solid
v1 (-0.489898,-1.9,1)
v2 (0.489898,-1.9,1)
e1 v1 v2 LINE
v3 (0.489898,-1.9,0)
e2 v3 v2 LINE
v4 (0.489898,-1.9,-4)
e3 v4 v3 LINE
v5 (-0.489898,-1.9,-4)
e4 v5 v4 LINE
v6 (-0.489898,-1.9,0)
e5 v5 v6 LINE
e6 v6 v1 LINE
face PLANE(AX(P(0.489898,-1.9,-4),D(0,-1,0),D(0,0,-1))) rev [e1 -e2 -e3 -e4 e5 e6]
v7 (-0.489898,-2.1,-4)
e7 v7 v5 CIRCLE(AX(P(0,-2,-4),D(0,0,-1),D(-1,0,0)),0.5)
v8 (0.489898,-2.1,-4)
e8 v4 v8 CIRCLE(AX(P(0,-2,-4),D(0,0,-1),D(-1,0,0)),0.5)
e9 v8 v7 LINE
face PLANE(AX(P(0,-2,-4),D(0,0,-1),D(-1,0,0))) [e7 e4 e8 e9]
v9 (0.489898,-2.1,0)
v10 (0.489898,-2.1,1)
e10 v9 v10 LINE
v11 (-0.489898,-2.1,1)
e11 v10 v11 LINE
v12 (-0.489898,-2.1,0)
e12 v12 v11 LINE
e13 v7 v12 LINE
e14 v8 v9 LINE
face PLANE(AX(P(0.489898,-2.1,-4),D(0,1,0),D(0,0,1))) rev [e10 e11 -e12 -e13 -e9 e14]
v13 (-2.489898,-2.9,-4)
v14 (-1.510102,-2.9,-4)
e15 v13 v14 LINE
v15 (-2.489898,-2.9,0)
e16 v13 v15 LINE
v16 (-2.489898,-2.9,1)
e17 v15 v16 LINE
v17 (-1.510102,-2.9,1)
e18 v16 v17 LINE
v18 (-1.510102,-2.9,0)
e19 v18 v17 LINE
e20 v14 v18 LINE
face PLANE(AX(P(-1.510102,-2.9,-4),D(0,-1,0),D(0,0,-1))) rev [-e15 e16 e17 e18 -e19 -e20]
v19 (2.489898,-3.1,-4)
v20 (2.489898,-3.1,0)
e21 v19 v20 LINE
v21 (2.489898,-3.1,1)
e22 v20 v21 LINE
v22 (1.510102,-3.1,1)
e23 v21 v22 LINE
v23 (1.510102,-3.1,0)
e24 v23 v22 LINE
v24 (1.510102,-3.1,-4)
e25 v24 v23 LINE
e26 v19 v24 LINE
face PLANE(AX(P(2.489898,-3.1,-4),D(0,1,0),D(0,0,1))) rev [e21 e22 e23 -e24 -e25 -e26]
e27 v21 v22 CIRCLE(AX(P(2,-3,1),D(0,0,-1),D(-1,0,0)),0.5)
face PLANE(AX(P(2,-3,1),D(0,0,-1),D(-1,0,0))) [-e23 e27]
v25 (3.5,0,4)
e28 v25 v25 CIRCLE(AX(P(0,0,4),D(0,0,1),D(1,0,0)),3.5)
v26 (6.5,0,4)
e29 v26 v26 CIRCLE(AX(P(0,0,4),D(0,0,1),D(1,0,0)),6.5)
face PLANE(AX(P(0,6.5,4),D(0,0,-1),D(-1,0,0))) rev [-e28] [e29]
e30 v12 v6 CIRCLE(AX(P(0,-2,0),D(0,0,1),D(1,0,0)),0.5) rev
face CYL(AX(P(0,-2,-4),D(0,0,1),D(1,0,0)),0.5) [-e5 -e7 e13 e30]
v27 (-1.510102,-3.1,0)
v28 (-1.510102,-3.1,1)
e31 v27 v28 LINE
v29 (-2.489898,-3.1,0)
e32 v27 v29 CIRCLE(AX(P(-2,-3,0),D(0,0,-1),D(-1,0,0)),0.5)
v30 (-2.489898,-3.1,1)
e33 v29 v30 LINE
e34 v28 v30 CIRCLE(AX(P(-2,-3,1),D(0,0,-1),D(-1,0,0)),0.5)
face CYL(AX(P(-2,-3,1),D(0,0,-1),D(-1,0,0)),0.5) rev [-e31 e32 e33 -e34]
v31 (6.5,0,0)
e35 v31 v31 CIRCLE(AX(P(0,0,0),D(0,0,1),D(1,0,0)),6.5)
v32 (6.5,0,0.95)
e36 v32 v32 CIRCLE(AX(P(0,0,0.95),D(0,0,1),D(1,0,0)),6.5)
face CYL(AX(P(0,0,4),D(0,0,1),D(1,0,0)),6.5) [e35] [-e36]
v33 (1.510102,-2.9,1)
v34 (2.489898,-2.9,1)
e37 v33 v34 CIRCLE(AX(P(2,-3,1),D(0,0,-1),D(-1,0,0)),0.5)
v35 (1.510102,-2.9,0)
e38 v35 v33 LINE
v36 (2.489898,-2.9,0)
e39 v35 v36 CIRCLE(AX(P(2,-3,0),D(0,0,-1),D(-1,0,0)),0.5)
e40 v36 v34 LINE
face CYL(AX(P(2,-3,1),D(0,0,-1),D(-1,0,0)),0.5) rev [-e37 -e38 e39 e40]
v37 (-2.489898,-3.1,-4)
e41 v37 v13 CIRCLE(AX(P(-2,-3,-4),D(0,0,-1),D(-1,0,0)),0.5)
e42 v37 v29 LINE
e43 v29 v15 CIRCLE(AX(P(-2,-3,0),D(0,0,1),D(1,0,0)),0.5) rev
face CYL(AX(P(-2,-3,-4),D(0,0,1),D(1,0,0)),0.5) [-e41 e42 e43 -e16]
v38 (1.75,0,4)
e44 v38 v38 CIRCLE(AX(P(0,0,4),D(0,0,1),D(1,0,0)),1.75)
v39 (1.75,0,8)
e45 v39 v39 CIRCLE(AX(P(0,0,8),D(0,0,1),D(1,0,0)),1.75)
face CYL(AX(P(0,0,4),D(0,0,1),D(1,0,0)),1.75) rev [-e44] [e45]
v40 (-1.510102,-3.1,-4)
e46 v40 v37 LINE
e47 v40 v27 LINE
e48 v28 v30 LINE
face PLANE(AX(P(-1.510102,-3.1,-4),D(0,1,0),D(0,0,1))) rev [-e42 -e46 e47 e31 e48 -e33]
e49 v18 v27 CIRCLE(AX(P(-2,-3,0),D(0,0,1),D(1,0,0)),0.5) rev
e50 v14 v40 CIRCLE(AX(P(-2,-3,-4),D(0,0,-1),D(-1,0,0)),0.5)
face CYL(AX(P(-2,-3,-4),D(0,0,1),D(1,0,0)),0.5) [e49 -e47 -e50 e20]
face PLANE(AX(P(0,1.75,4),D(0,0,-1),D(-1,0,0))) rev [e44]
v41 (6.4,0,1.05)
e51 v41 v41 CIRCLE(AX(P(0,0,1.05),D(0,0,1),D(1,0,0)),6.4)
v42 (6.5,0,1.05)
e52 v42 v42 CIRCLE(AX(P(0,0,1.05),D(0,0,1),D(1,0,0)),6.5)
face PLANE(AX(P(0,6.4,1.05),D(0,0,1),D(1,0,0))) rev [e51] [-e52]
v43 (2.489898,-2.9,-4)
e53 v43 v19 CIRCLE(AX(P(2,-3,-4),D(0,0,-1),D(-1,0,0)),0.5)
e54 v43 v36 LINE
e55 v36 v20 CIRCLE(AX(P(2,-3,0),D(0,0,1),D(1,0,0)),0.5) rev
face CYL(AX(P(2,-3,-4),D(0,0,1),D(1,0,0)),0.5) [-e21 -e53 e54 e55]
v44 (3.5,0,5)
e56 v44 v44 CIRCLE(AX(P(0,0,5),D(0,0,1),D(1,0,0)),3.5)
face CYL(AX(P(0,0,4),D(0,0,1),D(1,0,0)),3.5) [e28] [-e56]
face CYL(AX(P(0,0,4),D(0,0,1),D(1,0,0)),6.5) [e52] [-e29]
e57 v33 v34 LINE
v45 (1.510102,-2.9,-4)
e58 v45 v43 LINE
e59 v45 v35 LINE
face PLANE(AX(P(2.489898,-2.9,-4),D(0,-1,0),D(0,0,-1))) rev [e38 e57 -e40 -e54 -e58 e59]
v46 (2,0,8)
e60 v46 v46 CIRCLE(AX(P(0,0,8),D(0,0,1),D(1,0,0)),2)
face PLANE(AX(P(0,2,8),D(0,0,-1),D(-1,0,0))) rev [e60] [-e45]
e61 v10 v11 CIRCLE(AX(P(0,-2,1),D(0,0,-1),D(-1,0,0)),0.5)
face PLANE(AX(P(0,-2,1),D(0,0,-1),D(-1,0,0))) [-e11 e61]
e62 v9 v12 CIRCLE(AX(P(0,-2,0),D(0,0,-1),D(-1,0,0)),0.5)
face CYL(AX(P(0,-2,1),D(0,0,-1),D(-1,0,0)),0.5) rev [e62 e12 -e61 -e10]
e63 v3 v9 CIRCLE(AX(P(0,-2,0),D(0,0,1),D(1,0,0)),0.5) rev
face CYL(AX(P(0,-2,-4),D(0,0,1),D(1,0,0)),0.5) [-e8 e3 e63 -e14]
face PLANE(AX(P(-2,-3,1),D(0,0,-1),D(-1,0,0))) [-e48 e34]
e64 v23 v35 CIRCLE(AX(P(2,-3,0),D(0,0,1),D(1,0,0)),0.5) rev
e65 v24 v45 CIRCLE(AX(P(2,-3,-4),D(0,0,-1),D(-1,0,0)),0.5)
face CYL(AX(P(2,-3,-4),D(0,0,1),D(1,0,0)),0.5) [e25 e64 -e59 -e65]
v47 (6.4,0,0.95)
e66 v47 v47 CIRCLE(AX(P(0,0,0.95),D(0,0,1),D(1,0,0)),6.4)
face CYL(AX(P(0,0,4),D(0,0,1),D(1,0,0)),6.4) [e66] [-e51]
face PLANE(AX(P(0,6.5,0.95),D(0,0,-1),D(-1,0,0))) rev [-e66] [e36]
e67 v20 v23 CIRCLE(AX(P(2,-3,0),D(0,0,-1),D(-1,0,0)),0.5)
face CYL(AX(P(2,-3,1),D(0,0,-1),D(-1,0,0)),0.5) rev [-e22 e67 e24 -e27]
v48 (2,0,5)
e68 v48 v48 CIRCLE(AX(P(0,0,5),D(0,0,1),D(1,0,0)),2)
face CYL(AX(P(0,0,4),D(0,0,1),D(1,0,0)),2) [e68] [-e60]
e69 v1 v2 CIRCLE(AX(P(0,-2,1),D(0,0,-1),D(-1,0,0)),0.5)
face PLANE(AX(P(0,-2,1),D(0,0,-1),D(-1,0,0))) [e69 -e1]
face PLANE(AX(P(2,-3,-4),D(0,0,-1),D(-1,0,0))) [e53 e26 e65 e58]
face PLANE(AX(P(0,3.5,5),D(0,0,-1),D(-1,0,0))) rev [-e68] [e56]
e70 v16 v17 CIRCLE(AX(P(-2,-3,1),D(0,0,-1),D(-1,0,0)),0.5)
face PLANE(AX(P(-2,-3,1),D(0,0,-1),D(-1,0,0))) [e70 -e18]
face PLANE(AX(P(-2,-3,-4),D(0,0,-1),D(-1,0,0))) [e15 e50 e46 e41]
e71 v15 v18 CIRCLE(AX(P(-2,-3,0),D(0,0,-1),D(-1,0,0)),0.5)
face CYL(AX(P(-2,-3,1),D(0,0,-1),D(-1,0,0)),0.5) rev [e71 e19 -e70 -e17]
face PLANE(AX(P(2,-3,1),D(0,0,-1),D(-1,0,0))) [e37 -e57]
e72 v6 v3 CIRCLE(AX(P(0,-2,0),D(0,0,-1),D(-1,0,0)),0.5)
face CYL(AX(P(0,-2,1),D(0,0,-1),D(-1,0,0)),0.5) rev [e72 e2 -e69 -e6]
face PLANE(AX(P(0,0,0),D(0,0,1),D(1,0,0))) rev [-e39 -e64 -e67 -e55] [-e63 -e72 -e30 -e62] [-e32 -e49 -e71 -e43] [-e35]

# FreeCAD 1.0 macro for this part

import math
import FreeCAD as App
import Part
import Sketcher

V = App.Vector

doc = App.newDocument("Part")
params = doc.addObject("Spreadsheet::Sheet", "Params")
for row, (alias, value) in enumerate([
    ("sketch1_width", "3 mm"),
    ("sketch1_height", "1 mm"),
    ("sketch1_width2", "6.5 mm"),
    ("sketch1_width3", "0.1 mm"),
    ("sketch1_width4", "1.5 mm"),
    ("revolution_angle", "360 deg"),
    ("sketch2_diameter", "1 mm"),
    ("pocket1_length", "1 mm"),
    ("sketch3_radius", "0.5 mm"),
    ("pad1_length", "5 mm"),
], start=1):
    params.set(f"A{row}", alias)
    params.set(f"B{row}", "=" + value)
    params.setAlias(f"B{row}", alias)

body = doc.addObject("PartDesign::Body", "Body")

# Sketch on YZ plane
sketch1 = body.newObject("Sketcher::SketchObject", "Sketch")
sketch1.AttachmentSupport = (doc.getObject("YZ_Plane"), [""])
sketch1.MapMode = "FlatFace"
sketch1.addGeometry([
    Part.LineSegment(V(0, 0, 0), V(6.5, 0, 0)),  # 0
    Part.LineSegment(V(6.5, 0, 0), V(6.5, 0.95, 0)),  # 1
    Part.LineSegment(V(6.5, 0.95, 0), V(6.4, 0.95, 0)),  # 2
    Part.LineSegment(V(6.4, 0.95, 0), V(6.4, 1.05, 0)),  # 3
    Part.LineSegment(V(6.4, 1.05, 0), V(6.5, 1.05, 0)),  # 4
    Part.LineSegment(V(6.5, 1.05, 0), V(6.5, 4, 0)),  # 5
    Part.LineSegment(V(6.5, 4, 0), V(3.5, 4, 0)),  # 6
    Part.LineSegment(V(3.5, 4, 0), V(3.5, 5, 0)),  # 7
    Part.LineSegment(V(3.5, 5, 0), V(2, 5, 0)),  # 8
    Part.LineSegment(V(2, 5, 0), V(2, 8, 0)),  # 9
    Part.LineSegment(V(2, 8, 0), V(1.75, 8, 0)),  # 10
    Part.LineSegment(V(1.75, 8, 0), V(1.75, 4, 0)),  # 11
    Part.LineSegment(V(1.75, 4, 0), V(0, 4, 0)),  # 12
    Part.LineSegment(V(0, 4, 0), V(0, 0, 0)),  # 13
], False)
sketch1.addConstraint([
    Sketcher.Constraint("Coincident", 0, 2, 1, 1),
    Sketcher.Constraint("Coincident", 1, 2, 2, 1),
    Sketcher.Constraint("Coincident", 2, 2, 3, 1),
    Sketcher.Constraint("Coincident", 3, 2, 4, 1),
    Sketcher.Constraint("Coincident", 4, 2, 5, 1),
    Sketcher.Constraint("Coincident", 5, 2, 6, 1),
    Sketcher.Constraint("Coincident", 6, 2, 7, 1),
    Sketcher.Constraint("Coincident", 7, 2, 8, 1),
    Sketcher.Constraint("Coincident", 8, 2, 9, 1),
    Sketcher.Constraint("Coincident", 9, 2, 10, 1),
    Sketcher.Constraint("Coincident", 10, 2, 11, 1),
    Sketcher.Constraint("Coincident", 11, 2, 12, 1),
    Sketcher.Constraint("Coincident", 12, 2, 13, 1),
    Sketcher.Constraint("Coincident", 13, 2, 0, 1),
    Sketcher.Constraint("Horizontal", 0),
    Sketcher.Constraint("Vertical", 1),
    Sketcher.Constraint("Horizontal", 2),
    Sketcher.Constraint("Vertical", 3),
    Sketcher.Constraint("Horizontal", 4),
    Sketcher.Constraint("Vertical", 5),
    Sketcher.Constraint("Horizontal", 6),
    Sketcher.Constraint("Vertical", 7),
    Sketcher.Constraint("Horizontal", 8),
    Sketcher.Constraint("Vertical", 9),
    Sketcher.Constraint("Horizontal", 10),
    Sketcher.Constraint("Vertical", 11),
    Sketcher.Constraint("Horizontal", 12),
    Sketcher.Constraint("Vertical", 13),
    Sketcher.Constraint("Coincident", 13, 2, -1, 1),
    Sketcher.Constraint("Horizontal", 6, 2, 11, 2),
    Sketcher.Constraint("Vertical", 1, 2, 4, 2),
    Sketcher.Constraint("Equal", 4, 3),
    Sketcher.Constraint("Equal", 6, 9),
    Sketcher.Constraint("Equal", 11, 13),
    Sketcher.Constraint("DistanceX", 6, 2, 6, 1, 3.0),
    Sketcher.Constraint("DistanceY", 7, 1, 7, 2, 1.0),
    Sketcher.Constraint("DistanceX", 0, 1, 0, 2, 6.5),
    Sketcher.Constraint("DistanceX", 2, 2, 2, 1, 0.1),
    Sketcher.Constraint("DistanceX", 8, 2, 8, 1, 1.5),
    Sketcher.Constraint("DistanceX", 10, 2, 10, 1, 0.25),
    Sketcher.Constraint("DistanceY", 1, 1, 1, 2, 0.95),
])
sketch1.setExpression("Constraints[34]", "Params.sketch1_width")
sketch1.setExpression("Constraints[35]", "Params.sketch1_height")
sketch1.setExpression("Constraints[36]", "Params.sketch1_width2")
sketch1.setExpression("Constraints[37]", "Params.sketch1_width3")
sketch1.setExpression("Constraints[38]", "Params.sketch1_width4")
revolution = body.newObject("PartDesign::Revolution", "Revolution")
revolution.Profile = sketch1
revolution.ReferenceAxis = (sketch1, ["V_Axis"])
revolution.setExpression("Angle", "Params.revolution_angle")

# Sketch on XY plane
sketch2 = body.newObject("Sketcher::SketchObject", "Sketch001")
sketch2.AttachmentSupport = (doc.getObject("XY_Plane"), [""])
sketch2.MapMode = "FlatFace"
sketch2.addGeometry([
    Part.Circle(V(2, -3, 0), V(0, 0, 1), 0.5),
    Part.Circle(V(-2, -3, 0), V(0, 0, 1), 0.5),
    Part.Circle(V(0, -2, 0), V(0, 0, 1), 0.5),
], False)
sketch2.addConstraint([
    Sketcher.Constraint("Equal", 0, 1),
    Sketcher.Constraint("Equal", 1, 2),
    Sketcher.Constraint("Symmetric", 0, 3, 1, 3, -2),
    Sketcher.Constraint("PointOnObject", 2, 3, -2),
    Sketcher.Constraint("Diameter", 0, 1.0),
    Sketcher.Constraint("DistanceX", -1, 1, 0, 3, 2.0),
    Sketcher.Constraint("DistanceY", 0, 3, -1, 1, 3.0),
    Sketcher.Constraint("DistanceY", 2, 3, -1, 1, 2.0),
])
sketch2.setExpression("Constraints[4]", "Params.sketch2_diameter")
pocket1 = body.newObject("PartDesign::Pocket", "Pocket")
pocket1.Profile = sketch2
pocket1.setExpression("Length", "Params.pocket1_length")
pocket1.Reversed = True

# Sketch on XY plane
sketch3 = body.newObject("Sketcher::SketchObject", "Sketch002")
sketch3.AttachmentSupport = (doc.getObject("XY_Plane"), [""])
sketch3.MapMode = "FlatFace"
sketch3.AttachmentOffset = App.Placement(V(0, 0, -4), App.Rotation())
sketch3.addGeometry([
    Part.LineSegment(V(-0.489898, -1.9, 0), V(0.489898, -1.9, 0)),  # 0
    Part.ArcOfCircle(Part.Circle(V(0, -2, 0), V(0, 0, 1), 0.5), math.radians(-11.536959), math.radians(11.536959)),  # 1
    Part.LineSegment(V(0.489898, -2.1, 0), V(-0.489898, -2.1, 0)),  # 2
    Part.ArcOfCircle(Part.Circle(V(0, -2, 0), V(0, 0, 1), 0.5), math.radians(168.463041), math.radians(191.536959)),  # 3
    Part.LineSegment(V(-2.489898, -2.9, 0), V(-1.510102, -2.9, 0)),  # 4
    Part.ArcOfCircle(Part.Circle(V(-2, -3, 0), V(0, 0, 1), 0.5), math.radians(-11.536959), math.radians(11.536959)),  # 5
    Part.LineSegment(V(-1.510102, -3.1, 0), V(-2.489898, -3.1, 0)),  # 6
    Part.ArcOfCircle(Part.Circle(V(-2, -3, 0), V(0, 0, 1), 0.5), math.radians(168.463041), math.radians(191.536959)),  # 7
    Part.LineSegment(V(1.510102, -2.9, 0), V(2.489898, -2.9, 0)),  # 8
    Part.ArcOfCircle(Part.Circle(V(2, -3, 0), V(0, 0, 1), 0.5), math.radians(-11.536959), math.radians(11.536959)),  # 9
    Part.LineSegment(V(2.489898, -3.1, 0), V(1.510102, -3.1, 0)),  # 10
    Part.ArcOfCircle(Part.Circle(V(2, -3, 0), V(0, 0, 1), 0.5), math.radians(168.463041), math.radians(191.536959)),  # 11
], False)
sketch3.addConstraint([
    Sketcher.Constraint("Coincident", 0, 2, 1, 2),
    Sketcher.Constraint("Coincident", 1, 1, 2, 1),
    Sketcher.Constraint("Coincident", 2, 2, 3, 2),
    Sketcher.Constraint("Coincident", 3, 1, 0, 1),
    Sketcher.Constraint("Coincident", 4, 2, 5, 2),
    Sketcher.Constraint("Coincident", 5, 1, 6, 1),
    Sketcher.Constraint("Coincident", 6, 2, 7, 2),
    Sketcher.Constraint("Coincident", 7, 1, 4, 1),
    Sketcher.Constraint("Coincident", 8, 2, 9, 2),
    Sketcher.Constraint("Coincident", 9, 1, 10, 1),
    Sketcher.Constraint("Coincident", 10, 2, 11, 2),
    Sketcher.Constraint("Coincident", 11, 1, 8, 1),
    Sketcher.Constraint("Horizontal", 0),
    Sketcher.Constraint("Horizontal", 2),
    Sketcher.Constraint("Horizontal", 4),
    Sketcher.Constraint("Horizontal", 6),
    Sketcher.Constraint("Horizontal", 8),
    Sketcher.Constraint("Horizontal", 10),
    Sketcher.Constraint("Coincident", 3, 3, 1, 3),
    Sketcher.Constraint("Coincident", 7, 3, 5, 3),
    Sketcher.Constraint("Coincident", 11, 3, 9, 3),
    Sketcher.Constraint("Equal", 1, 3),
    Sketcher.Constraint("Equal", 3, 5),
    Sketcher.Constraint("Equal", 5, 7),
    Sketcher.Constraint("Equal", 7, 9),
    Sketcher.Constraint("Equal", 9, 11),
    Sketcher.Constraint("Symmetric", 5, 3, 9, 3, -2),
    Sketcher.Constraint("PointOnObject", 1, 3, -2),
    Sketcher.Constraint("Horizontal", 7, 1, 8, 2),
    Sketcher.Constraint("Horizontal", 6, 2, 9, 1),
    Sketcher.Constraint("Vertical", 0, 2, 1, 1),
    Sketcher.Constraint("Vertical", 4, 2, 5, 1),
    Sketcher.Constraint("Equal", 2, 4),
    Sketcher.Constraint("Radius", 1, 0.5),
    Sketcher.Constraint("DistanceY", 1, 3, -1, 1, 2.0),
    Sketcher.Constraint("DistanceX", 5, 3, -1, 1, 2.0),
    Sketcher.Constraint("DistanceY", 5, 3, -1, 1, 3.0),
    Sketcher.Constraint("DistanceY", 0, 2, -1, 1, 1.9),
])
sketch3.setExpression("Constraints[33]", "Params.sketch3_radius")
pad1 = body.newObject("PartDesign::Pad", "Pad")
pad1.Profile = sketch3
pad1.setExpression("Length", "Params.pad1_length")

doc.recompute()
